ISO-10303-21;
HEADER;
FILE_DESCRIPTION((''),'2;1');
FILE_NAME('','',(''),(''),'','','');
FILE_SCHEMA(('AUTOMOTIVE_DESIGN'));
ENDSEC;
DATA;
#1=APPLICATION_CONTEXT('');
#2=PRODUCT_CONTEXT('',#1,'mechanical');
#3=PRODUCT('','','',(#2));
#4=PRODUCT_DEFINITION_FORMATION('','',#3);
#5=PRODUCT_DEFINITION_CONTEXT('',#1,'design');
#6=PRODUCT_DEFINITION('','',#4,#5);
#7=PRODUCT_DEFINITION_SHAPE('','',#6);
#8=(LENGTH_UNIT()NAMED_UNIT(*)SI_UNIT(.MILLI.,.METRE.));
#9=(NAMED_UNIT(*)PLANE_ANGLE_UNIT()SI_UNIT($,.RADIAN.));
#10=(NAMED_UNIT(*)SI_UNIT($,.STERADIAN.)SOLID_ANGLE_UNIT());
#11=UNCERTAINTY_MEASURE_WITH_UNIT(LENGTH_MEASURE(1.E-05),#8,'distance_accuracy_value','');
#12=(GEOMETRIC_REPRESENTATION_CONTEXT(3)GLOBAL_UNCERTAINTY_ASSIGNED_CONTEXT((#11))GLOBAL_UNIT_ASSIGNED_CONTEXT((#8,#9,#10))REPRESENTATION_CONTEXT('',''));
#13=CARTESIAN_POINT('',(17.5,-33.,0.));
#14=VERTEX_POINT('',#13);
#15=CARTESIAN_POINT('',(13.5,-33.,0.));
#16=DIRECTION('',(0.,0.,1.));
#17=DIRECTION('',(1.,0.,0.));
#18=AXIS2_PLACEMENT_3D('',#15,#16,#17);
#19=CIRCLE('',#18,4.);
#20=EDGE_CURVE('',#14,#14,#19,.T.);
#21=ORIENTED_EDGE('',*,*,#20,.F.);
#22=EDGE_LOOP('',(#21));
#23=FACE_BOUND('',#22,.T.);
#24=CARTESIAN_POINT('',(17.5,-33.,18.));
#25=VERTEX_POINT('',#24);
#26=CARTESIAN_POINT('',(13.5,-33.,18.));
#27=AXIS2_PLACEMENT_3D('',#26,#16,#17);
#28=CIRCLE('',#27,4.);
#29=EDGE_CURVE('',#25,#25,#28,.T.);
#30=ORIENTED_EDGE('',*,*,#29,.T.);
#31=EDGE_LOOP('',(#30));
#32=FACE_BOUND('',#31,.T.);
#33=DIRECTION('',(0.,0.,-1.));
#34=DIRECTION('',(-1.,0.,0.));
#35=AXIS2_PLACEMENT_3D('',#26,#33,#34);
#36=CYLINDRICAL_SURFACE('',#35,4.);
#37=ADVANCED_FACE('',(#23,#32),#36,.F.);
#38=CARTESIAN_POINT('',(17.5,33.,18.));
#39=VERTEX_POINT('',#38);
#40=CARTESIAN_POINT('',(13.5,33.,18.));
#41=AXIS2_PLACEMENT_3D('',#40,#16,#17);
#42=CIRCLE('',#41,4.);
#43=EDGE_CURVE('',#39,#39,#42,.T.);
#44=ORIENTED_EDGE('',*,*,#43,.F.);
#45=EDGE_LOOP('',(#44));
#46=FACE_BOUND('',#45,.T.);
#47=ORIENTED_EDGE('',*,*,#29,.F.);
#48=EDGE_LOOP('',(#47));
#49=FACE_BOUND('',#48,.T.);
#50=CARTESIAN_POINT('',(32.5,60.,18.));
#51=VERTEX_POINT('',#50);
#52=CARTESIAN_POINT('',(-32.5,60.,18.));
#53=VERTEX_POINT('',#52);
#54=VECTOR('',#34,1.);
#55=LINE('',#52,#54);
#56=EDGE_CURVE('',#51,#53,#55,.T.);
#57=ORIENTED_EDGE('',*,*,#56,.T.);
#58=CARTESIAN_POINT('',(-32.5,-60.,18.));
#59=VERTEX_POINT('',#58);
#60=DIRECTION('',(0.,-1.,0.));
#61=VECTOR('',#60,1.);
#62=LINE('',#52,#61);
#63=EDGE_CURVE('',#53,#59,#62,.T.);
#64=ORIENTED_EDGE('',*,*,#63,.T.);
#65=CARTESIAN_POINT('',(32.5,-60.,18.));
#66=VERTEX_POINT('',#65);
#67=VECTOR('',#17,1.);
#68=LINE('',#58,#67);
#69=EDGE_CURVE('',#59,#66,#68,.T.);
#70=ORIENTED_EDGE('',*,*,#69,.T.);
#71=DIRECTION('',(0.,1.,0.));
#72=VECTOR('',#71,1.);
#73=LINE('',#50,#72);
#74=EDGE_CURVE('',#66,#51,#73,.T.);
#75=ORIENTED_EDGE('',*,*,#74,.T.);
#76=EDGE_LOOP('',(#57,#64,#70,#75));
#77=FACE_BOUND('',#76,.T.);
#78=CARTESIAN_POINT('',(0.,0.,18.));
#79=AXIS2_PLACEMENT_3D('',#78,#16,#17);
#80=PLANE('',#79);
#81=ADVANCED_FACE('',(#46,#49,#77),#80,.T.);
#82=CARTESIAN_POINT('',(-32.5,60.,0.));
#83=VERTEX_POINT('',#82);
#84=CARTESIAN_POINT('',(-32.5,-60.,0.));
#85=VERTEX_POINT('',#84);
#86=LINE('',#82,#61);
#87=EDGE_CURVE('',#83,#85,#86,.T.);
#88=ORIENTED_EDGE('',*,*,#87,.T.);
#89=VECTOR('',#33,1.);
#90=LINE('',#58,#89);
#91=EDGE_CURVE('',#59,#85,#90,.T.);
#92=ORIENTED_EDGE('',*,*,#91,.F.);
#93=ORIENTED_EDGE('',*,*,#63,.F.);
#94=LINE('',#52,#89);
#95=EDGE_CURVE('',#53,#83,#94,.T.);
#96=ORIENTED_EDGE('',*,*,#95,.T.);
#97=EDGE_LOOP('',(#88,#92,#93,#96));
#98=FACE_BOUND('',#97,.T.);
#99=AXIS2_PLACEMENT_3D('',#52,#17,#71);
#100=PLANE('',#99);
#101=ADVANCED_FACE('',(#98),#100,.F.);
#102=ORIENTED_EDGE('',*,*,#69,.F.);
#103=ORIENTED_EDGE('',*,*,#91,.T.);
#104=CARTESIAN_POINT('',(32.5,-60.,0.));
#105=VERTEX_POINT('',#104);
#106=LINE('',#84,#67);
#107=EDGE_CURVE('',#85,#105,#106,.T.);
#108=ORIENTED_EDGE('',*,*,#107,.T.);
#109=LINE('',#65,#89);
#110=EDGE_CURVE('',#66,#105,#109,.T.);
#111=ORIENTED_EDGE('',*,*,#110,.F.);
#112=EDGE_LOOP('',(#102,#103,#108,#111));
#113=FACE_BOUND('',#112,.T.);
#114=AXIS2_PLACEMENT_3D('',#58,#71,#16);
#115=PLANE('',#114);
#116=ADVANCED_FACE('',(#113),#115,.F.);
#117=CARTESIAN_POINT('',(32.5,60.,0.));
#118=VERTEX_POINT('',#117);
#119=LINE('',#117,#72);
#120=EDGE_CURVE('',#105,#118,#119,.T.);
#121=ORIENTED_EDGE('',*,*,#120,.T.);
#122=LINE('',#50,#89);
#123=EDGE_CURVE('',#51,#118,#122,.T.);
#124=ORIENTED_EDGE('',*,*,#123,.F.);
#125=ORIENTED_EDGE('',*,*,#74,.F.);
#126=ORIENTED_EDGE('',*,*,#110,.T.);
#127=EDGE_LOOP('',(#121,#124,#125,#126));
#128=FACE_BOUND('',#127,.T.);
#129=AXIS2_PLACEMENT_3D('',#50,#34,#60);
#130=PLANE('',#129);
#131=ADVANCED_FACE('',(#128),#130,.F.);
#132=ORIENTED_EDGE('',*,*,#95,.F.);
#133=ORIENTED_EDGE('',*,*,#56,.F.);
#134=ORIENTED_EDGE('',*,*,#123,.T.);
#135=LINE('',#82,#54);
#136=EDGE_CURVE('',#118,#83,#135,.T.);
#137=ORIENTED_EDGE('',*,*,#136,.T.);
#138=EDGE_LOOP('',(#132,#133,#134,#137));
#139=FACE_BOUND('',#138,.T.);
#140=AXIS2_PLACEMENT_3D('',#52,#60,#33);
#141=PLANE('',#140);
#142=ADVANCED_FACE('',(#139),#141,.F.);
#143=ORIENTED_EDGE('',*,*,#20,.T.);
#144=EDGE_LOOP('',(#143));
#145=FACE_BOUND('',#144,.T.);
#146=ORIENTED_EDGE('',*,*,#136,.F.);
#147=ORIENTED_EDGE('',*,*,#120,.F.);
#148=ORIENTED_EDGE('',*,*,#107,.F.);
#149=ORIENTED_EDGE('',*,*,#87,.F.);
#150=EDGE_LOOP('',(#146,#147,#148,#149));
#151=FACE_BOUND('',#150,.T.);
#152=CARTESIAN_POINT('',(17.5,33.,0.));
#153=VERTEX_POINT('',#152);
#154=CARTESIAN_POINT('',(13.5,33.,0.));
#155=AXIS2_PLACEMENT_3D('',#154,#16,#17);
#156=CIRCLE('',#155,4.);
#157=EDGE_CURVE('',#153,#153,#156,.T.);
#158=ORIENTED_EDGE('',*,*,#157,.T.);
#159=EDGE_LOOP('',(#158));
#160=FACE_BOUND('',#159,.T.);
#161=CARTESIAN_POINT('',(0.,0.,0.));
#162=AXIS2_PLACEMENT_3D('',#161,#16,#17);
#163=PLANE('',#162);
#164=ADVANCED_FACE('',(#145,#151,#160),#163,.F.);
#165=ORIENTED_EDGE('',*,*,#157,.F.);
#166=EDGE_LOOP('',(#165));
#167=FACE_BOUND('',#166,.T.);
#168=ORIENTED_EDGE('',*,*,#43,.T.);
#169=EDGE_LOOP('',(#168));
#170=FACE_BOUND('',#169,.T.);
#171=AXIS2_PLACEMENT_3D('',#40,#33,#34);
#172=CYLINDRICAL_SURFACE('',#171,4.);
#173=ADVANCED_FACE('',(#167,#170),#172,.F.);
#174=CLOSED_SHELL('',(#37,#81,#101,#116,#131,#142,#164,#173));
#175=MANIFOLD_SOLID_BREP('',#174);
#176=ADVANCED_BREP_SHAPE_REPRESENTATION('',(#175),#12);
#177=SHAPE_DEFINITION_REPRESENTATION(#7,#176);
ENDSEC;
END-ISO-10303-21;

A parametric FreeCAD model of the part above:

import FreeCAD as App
import Part
import Sketcher
from FreeCAD import Vector
Q = App.Units.Quantity

doc = App.newDocument("Part")
body = doc.addObject("PartDesign::Body", "Body")

sketch1 = body.newObject("Sketcher::SketchObject", "Sketch")
sketch1.AttachmentSupport = (doc.getObject("XY_Plane"), [""])
sketch1.MapMode = "FlatFace"
sketch1.addGeometry([
    Part.LineSegment(Vector(-32.5, 60, 0), Vector(-32.5, -60, 0)),
    Part.LineSegment(Vector(-32.5, -60, 0), Vector(32.5, -60, 0)),
    Part.LineSegment(Vector(32.5, -60, 0), Vector(32.5, 60, 0)),
    Part.LineSegment(Vector(32.5, 60, 0), Vector(-32.5, 60, 0)),
    Part.Circle(Vector(13.5, -33, 0), Vector(0, 0, 1), 4),
    Part.Circle(Vector(13.5, 33, 0), Vector(0, 0, 1), 4),
], False)
sketch1.addConstraint([
    Sketcher.Constraint("Coincident", 0, 2, 1, 1),
    Sketcher.Constraint("Coincident", 1, 2, 2, 1),
    Sketcher.Constraint("Coincident", 2, 2, 3, 1),
    Sketcher.Constraint("Coincident", 3, 2, 0, 1),
    Sketcher.Constraint("Vertical", 0),
    Sketcher.Constraint("Horizontal", 1),
    Sketcher.Constraint("Vertical", 2),
    Sketcher.Constraint("Horizontal", 3),
    Sketcher.Constraint("Equal", 4, 5),
    Sketcher.Constraint("Symmetric", 0, 2, 2, 2, -1, 1),
    Sketcher.Constraint("Symmetric", 4, 3, 5, 3, -1),
    Sketcher.Constraint("Diameter", 4, Q("8 mm")),
    Sketcher.Constraint("DistanceX", 1, 1, 1, 2, Q("65 mm")),
    Sketcher.Constraint("DistanceY", 0, 2, 0, 1, Q("120 mm")),
    Sketcher.Constraint("DistanceY", 4, 3, -1, 1, Q("33 mm")),
    Sketcher.Constraint("DistanceX", 0, 2, 4, 3, Q("46 mm")),
])
pad1 = body.newObject("PartDesign::Pad", "Pad")
pad1.Profile = sketch1
pad1.Length = 18

doc.recompute()
